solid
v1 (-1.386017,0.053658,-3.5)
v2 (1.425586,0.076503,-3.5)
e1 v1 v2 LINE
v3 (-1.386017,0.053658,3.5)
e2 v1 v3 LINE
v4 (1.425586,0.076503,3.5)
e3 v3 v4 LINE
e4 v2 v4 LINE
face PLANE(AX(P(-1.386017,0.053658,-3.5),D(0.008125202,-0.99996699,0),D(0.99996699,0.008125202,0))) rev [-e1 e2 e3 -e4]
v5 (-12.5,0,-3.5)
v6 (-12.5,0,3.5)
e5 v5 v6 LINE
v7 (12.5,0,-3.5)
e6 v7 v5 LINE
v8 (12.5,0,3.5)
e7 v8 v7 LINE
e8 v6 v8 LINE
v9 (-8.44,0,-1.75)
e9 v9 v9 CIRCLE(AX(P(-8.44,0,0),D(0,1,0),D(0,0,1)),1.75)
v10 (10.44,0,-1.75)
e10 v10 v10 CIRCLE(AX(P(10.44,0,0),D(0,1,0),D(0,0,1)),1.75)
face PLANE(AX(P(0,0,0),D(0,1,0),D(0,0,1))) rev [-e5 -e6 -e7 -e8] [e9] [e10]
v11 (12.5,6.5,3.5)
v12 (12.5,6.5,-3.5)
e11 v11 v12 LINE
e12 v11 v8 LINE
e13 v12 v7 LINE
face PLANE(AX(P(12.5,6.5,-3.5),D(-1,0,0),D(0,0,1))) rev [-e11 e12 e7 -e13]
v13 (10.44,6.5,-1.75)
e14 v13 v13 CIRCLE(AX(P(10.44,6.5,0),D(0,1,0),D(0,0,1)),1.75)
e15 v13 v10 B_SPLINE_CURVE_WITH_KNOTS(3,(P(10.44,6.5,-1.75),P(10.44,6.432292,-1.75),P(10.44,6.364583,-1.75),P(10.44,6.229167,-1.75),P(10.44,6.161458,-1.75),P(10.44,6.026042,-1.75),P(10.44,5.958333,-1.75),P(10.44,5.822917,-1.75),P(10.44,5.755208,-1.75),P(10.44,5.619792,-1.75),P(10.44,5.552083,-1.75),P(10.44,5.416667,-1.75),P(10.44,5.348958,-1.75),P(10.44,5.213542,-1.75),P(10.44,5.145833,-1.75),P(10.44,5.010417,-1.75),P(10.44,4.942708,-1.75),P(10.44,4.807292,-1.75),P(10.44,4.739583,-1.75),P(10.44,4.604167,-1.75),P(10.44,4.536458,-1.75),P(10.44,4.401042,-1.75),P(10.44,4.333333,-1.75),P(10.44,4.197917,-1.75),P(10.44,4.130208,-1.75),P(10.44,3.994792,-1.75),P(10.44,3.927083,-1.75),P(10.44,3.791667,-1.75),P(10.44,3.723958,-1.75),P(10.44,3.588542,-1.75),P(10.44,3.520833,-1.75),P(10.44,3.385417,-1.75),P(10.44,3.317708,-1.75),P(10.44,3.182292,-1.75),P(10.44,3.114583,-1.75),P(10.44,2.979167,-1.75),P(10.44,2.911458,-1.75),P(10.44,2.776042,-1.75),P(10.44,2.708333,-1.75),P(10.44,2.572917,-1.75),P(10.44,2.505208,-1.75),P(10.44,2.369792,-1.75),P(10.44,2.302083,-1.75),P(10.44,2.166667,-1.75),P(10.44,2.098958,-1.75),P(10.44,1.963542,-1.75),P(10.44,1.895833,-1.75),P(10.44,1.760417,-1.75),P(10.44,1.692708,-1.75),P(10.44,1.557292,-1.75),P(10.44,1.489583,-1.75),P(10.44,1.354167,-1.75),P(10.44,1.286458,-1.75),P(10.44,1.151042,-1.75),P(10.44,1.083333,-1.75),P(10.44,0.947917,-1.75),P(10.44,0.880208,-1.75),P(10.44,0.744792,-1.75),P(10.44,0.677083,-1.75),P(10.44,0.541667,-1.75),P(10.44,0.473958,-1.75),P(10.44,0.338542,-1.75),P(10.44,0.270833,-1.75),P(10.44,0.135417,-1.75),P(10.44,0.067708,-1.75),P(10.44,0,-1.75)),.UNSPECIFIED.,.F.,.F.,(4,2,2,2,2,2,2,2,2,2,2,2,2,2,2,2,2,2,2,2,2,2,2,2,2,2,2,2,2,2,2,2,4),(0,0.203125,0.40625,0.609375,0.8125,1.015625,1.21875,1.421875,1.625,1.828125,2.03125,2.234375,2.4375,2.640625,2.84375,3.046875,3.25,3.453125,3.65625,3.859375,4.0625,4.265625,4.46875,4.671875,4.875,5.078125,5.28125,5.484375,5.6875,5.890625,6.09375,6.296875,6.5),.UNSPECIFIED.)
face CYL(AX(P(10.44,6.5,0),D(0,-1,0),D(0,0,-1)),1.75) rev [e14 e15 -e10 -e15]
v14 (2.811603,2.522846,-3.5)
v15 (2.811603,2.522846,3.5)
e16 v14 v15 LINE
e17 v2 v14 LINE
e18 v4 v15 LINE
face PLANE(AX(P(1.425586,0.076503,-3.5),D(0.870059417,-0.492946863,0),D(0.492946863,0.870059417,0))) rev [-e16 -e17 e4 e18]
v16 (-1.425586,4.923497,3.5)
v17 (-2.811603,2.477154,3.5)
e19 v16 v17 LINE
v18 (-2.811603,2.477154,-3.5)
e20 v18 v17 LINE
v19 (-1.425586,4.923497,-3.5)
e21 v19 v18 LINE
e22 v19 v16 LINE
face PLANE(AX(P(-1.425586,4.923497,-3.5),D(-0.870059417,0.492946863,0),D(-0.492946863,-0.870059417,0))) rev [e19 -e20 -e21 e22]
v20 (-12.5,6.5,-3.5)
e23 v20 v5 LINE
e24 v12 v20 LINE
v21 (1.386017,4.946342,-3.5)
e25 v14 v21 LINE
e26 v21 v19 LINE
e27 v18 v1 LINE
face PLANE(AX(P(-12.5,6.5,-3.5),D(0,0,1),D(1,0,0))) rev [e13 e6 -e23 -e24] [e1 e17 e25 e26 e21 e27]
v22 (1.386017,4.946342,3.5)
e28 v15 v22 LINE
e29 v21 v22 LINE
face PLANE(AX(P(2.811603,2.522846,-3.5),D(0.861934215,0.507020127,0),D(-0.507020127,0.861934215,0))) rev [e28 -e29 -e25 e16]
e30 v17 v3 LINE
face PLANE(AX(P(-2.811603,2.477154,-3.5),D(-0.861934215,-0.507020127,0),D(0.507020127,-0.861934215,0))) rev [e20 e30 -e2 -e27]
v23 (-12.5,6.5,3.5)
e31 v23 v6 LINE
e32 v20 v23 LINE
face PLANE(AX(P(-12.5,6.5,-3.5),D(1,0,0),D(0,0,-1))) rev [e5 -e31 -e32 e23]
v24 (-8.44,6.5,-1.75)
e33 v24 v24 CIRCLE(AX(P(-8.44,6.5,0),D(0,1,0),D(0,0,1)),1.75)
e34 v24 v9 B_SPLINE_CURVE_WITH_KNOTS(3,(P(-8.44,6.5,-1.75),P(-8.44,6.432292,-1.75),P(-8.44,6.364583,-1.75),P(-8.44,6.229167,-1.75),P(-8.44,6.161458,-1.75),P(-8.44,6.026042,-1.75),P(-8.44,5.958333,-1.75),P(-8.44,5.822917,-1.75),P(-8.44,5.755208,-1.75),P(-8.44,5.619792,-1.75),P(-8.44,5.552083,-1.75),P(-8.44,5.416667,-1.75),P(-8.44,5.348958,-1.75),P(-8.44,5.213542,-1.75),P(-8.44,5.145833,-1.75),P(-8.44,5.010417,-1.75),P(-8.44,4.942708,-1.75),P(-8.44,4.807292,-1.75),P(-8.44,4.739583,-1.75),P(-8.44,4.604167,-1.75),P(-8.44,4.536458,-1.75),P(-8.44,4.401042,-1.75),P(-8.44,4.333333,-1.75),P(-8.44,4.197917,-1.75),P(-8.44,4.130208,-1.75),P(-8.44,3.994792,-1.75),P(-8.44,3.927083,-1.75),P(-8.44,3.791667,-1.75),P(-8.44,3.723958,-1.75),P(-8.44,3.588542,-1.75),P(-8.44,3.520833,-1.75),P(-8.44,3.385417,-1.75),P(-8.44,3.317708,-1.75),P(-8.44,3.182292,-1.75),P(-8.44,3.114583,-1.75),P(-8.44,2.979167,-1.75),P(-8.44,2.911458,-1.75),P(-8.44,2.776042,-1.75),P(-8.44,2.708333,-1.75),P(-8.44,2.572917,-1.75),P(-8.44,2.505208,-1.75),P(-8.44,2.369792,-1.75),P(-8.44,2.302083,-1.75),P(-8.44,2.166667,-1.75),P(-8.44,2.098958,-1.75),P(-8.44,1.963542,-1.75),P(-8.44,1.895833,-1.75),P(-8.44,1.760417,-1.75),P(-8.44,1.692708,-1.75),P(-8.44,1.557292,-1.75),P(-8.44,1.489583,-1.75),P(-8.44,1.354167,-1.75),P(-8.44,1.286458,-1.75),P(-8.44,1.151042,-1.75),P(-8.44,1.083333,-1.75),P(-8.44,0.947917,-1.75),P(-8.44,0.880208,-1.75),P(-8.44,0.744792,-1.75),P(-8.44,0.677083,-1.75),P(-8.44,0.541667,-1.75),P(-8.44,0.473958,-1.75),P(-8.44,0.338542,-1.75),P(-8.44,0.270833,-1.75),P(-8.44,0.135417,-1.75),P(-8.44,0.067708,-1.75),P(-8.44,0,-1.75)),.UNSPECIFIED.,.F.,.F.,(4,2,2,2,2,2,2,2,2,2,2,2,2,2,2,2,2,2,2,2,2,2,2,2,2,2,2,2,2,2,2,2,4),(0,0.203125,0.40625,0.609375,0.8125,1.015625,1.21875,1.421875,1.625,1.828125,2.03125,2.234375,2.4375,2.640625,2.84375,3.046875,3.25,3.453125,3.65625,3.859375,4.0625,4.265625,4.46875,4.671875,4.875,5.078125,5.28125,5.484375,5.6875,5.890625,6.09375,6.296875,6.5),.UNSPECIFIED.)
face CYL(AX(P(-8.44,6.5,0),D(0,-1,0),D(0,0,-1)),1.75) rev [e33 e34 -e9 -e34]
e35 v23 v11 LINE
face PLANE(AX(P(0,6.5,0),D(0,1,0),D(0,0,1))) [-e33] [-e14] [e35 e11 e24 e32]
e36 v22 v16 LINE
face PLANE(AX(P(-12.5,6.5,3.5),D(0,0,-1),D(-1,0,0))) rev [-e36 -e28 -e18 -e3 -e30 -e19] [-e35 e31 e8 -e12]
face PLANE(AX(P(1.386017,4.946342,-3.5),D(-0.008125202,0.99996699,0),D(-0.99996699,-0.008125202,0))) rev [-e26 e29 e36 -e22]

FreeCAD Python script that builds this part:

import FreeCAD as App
import Part
import Sketcher

V = App.Vector
Q = App.Units.Quantity


def add_polygon(sketch, points):
    """Adds a closed chain of lines whose ends are joined by coincident constraints."""
    first, n = sketch.GeometryCount, len(points)
    for a, b in zip(points, points[1:] + points[:1]):
        sketch.addGeometry(Part.LineSegment(App.Vector(*a, 0), App.Vector(*b, 0)), False)
    for i in range(n):
        sketch.addConstraint(Sketcher.Constraint("Coincident", first + i, 2, first + (i + 1) % n, 1))

doc = App.newDocument("Part")
body = doc.addObject("PartDesign::Body", "Body")

# Sketch on XZ plane
sketch1 = body.newObject("Sketcher::SketchObject", "Sketch")
sketch1.AttachmentSupport = (doc.getObject("XZ_Plane"), [""])
sketch1.MapMode = "FlatFace"
add_polygon(sketch1, [(-12.5, -3.5), (-12.5, 3.5), (12.5, 3.5), (12.5, -3.5)])  # lines 0-3
sketch1.addGeometry(Part.Circle(V(-8.44, 0, 0), V(0, 0, 1), 1.75), False)  # 4
sketch1.addGeometry(Part.Circle(V(10.44, 0, 0), V(0, 0, 1), 1.75), False)  # 5
sketch1.addConstraint(Sketcher.Constraint("Vertical", 0))
sketch1.addConstraint(Sketcher.Constraint("Horizontal", 1))
sketch1.addConstraint(Sketcher.Constraint("Vertical", 2))
sketch1.addConstraint(Sketcher.Constraint("Horizontal", 3))
sketch1.addConstraint(Sketcher.Constraint("Equal", 4, 5))
sketch1.addConstraint(Sketcher.Constraint("Symmetric", 0, 2, 2, 2, -1, 1))
sketch1.addConstraint(Sketcher.Constraint("PointOnObject", 4, 3, -1))
sketch1.addConstraint(Sketcher.Constraint("PointOnObject", 5, 3, -1))
sketch1.addConstraint(Sketcher.Constraint("Diameter", 4, Q("3.5 mm")))
sketch1.addConstraint(Sketcher.Constraint("DistanceX", 1, 1, 1, 2, Q("25 mm")))
sketch1.addConstraint(Sketcher.Constraint("DistanceY", 0, 1, 0, 2, Q("7 mm")))
sketch1.addConstraint(Sketcher.Constraint("DistanceX", 4, 3, -1, 1, Q("8.44 mm")))
sketch1.addConstraint(Sketcher.Constraint("DistanceX", -1, 1, 5, 3, Q("10.44 mm")))
pad1 = body.newObject("PartDesign::Pad", "Pad")
pad1.Profile = sketch1
pad1.Length = 6.5
pad1.Reversed = True

# Sketch on XY plane
sketch2 = body.newObject("Sketcher::SketchObject", "Sketch001")
sketch2.AttachmentSupport = (doc.getObject("XY_Plane"), [""])
sketch2.MapMode = "FlatFace"
add_polygon(sketch2, [(1.425586, 0.076503), (2.811603, 2.522846), (1.386017, 4.946342), (-1.425586, 4.923497), (-2.811603, 2.477154), (-1.386017, 0.053658)])  # lines 0-5
sketch2.addConstraint(Sketcher.Constraint("Parallel", 0, 3))
sketch2.addConstraint(Sketcher.Constraint("Parallel", 1, 4))
sketch2.addConstraint(Sketcher.Constraint("Parallel", 2, 5))
sketch2.addConstraint(Sketcher.Constraint("Equal", 0, 1))
sketch2.addConstraint(Sketcher.Constraint("Equal", 1, 2))
sketch2.addConstraint(Sketcher.Constraint("Equal", 2, 3))
sketch2.addConstraint(Sketcher.Constraint("DistanceX", 2, 2, 0, 2, Q("4.237189 mm")))
sketch2.addConstraint(Sketcher.Constraint("DistanceY", 0, 2, 2, 2, Q("2.400651 mm")))
sketch2.addConstraint(Sketcher.Constraint("DistanceX", 3, 2, 1, 2, Q("4.19762 mm")))
sketch2.addConstraint(Sketcher.Constraint("DistanceY", 3, 2, 1, 2, Q("2.469188 mm")))
sketch2.addConstraint(Sketcher.Constraint("DistanceX", -1, 1, 0, 2, Q("2.811603 mm")))
sketch2.addConstraint(Sketcher.Constraint("DistanceY", -1, 1, 0, 2, Q("2.522846 mm")))
pocket1 = body.newObject("PartDesign::Pocket", "Pocket")
pocket1.Profile = sketch2
pocket1.Type = "ThroughAll"
pocket1.Midplane = True

doc.recompute()
